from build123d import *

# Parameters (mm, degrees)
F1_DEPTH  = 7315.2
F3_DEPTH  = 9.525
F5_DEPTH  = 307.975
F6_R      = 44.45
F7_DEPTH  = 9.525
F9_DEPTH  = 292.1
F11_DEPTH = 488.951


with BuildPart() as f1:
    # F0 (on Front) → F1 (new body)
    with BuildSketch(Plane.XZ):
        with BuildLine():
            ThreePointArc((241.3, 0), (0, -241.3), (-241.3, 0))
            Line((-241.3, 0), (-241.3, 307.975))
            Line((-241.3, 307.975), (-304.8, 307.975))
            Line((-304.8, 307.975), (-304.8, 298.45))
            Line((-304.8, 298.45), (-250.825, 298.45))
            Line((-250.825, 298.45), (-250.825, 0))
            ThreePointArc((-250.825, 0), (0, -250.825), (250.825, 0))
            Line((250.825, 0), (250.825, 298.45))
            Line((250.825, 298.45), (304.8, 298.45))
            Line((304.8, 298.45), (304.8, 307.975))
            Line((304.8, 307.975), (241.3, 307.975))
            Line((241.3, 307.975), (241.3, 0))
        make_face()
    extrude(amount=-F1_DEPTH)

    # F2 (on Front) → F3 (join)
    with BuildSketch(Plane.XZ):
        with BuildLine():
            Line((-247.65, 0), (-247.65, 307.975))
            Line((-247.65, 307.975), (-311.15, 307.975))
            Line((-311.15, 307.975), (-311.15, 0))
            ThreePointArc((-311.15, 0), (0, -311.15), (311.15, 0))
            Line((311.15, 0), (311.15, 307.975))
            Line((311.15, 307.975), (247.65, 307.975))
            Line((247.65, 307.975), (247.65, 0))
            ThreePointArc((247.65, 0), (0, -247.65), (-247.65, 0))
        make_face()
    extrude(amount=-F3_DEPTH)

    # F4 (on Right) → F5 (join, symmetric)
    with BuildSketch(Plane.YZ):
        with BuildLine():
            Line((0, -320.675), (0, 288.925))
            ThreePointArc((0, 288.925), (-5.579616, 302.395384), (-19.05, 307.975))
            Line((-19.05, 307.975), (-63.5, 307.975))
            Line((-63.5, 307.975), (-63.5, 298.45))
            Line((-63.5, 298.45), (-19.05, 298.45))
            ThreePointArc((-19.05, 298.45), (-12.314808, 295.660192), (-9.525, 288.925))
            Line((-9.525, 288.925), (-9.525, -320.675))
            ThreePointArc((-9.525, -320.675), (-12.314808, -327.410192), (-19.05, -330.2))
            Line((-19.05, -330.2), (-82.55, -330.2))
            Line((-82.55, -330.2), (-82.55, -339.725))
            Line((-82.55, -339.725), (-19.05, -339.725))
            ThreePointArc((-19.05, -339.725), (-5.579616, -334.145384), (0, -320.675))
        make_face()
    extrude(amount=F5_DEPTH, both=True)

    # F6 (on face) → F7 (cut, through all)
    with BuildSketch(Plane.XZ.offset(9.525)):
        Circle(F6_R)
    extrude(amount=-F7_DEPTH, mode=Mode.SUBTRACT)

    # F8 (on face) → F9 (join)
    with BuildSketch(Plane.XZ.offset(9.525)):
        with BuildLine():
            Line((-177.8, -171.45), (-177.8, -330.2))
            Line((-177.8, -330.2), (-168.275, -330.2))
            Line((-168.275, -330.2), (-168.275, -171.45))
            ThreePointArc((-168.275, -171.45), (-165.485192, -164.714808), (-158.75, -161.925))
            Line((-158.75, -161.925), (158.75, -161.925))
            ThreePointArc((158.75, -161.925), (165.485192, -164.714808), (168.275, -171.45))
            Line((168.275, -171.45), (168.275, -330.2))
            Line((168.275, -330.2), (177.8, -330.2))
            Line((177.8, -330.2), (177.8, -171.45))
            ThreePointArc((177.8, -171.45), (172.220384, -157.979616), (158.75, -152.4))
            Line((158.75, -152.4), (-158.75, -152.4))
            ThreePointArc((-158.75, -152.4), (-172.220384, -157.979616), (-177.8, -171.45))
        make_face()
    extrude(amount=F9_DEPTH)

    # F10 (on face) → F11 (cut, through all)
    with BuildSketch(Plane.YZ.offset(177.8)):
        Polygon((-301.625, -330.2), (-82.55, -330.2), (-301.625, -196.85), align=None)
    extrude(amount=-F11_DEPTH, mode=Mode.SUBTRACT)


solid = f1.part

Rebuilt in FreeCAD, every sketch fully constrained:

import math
import FreeCAD as App
import Part
import Sketcher

V = App.Vector
Q = App.Units.Quantity

doc = App.newDocument("Part")
params = doc.addObject("Spreadsheet::Sheet", "Params")
for row, (alias, value) in enumerate([
    ("sketch1_radius", "9.5 in"),
    ("sketch1_width", "2.5 in"),
    ("sketch1_radius2", "9.875 in"),
    ("sketch1_height", "11.75 in"),
    ("sketch1_height2", "12.125 in"),
    ("pad1_length", "288 in"),
    ("sketch2_radius", "12.25 in"),
    ("sketch2_radius2", "9.75 in"),
    ("sketch2_height", "12.125 in"),
    ("pad2_length", "0.375 in"),
    ("sketch3_height", "24 in"),
    ("sketch3_radius", "0.75 in"),
    ("sketch3_width", "2.5 in"),
    ("sketch3_radius2", "0.375 in"),
    ("sketch3_width2", "1.75 in"),
    ("pad3_length", "24.25 in"),
    ("sketch4_diameter", "3.5 in"),
    ("sketch5_radius", "0.75 in"),
    ("sketch5_width", "12.5 in"),
    ("sketch5_radius2", "0.375 in"),
    ("pad4_length", "11.5 in"),
    ("sketch6_height", "5.25 in"),
    ("sketch6_width", "8.625 in"),
], start=1):
    params.set(f"A{row}", alias)
    params.set(f"B{row}", "=" + value)
    params.setAlias(f"B{row}", alias)

body = doc.addObject("PartDesign::Body", "Body")

# Sketch on XZ plane
sketch1 = body.newObject("Sketcher::SketchObject", "Sketch")
sketch1.AttachmentSupport = (doc.getObject("XZ_Plane"), [""])
sketch1.MapMode = "FlatFace"
sketch1.addGeometry(Part.ArcOfCircle(Part.Circle(V(0, 0, 0), V(0, 0, 1), 241.3), math.radians(180), math.radians(360)), False)
sketch1.addGeometry(Part.LineSegment(V(-241.3, 0, 0), V(-241.3, 307.975, 0)), False)
sketch1.addGeometry(Part.LineSegment(V(-241.3, 307.975, 0), V(-304.8, 307.975, 0)), False)
sketch1.addGeometry(Part.LineSegment(V(-304.8, 307.975, 0), V(-304.8, 298.45, 0)), False)
sketch1.addGeometry(Part.LineSegment(V(-304.8, 298.45, 0), V(-250.825, 298.45, 0)), False)
sketch1.addGeometry(Part.LineSegment(V(-250.825, 298.45, 0), V(-250.825, 0, 0)), False)
sketch1.addGeometry(Part.ArcOfCircle(Part.Circle(V(0, 0, 0), V(0, 0, 1), 250.825), math.radians(180), math.radians(360)), False)
sketch1.addGeometry(Part.LineSegment(V(250.825, 0, 0), V(250.825, 298.45, 0)), False)
sketch1.addGeometry(Part.LineSegment(V(250.825, 298.45, 0), V(304.8, 298.45, 0)), False)
sketch1.addGeometry(Part.LineSegment(V(304.8, 298.45, 0), V(304.8, 307.975, 0)), False)
sketch1.addGeometry(Part.LineSegment(V(304.8, 307.975, 0), V(241.3, 307.975, 0)), False)
sketch1.addGeometry(Part.LineSegment(V(241.3, 307.975, 0), V(241.3, 0, 0)), False)
sketch1.addConstraint(Sketcher.Constraint("Tangent", 0, 1, 1, 1))
sketch1.addConstraint(Sketcher.Constraint("Coincident", 1, 2, 2, 1))
sketch1.addConstraint(Sketcher.Constraint("Coincident", 2, 2, 3, 1))
sketch1.addConstraint(Sketcher.Constraint("Coincident", 3, 2, 4, 1))
sketch1.addConstraint(Sketcher.Constraint("Coincident", 4, 2, 5, 1))
sketch1.addConstraint(Sketcher.Constraint("Tangent", 5, 2, 6, 1))
sketch1.addConstraint(Sketcher.Constraint("Tangent", 6, 2, 7, 1))
sketch1.addConstraint(Sketcher.Constraint("Coincident", 7, 2, 8, 1))
sketch1.addConstraint(Sketcher.Constraint("Coincident", 8, 2, 9, 1))
sketch1.addConstraint(Sketcher.Constraint("Coincident", 9, 2, 10, 1))
sketch1.addConstraint(Sketcher.Constraint("Coincident", 10, 2, 11, 1))
sketch1.addConstraint(Sketcher.Constraint("Tangent", 11, 2, 0, 2))
sketch1.addConstraint(Sketcher.Constraint("Vertical", 1))
sketch1.addConstraint(Sketcher.Constraint("Horizontal", 2))
sketch1.addConstraint(Sketcher.Constraint("Vertical", 3))
sketch1.addConstraint(Sketcher.Constraint("Horizontal", 4))
sketch1.addConstraint(Sketcher.Constraint("Vertical", 5))
sketch1.addConstraint(Sketcher.Constraint("Vertical", 7))
sketch1.addConstraint(Sketcher.Constraint("Horizontal", 8))
sketch1.addConstraint(Sketcher.Constraint("Vertical", 9))
sketch1.addConstraint(Sketcher.Constraint("Horizontal", 10))
sketch1.addConstraint(Sketcher.Constraint("Vertical", 11))
sketch1.addConstraint(Sketcher.Constraint("Coincident", 0, 3, -1, 1))
sketch1.addConstraint(Sketcher.Constraint("Coincident", 6, 3, -1, 1))
sketch1.addConstraint(Sketcher.Constraint("Symmetric", 3, 2, 8, 2, -2))
sketch1.addConstraint(Sketcher.Constraint("Horizontal", 2, 2, 9, 2))
sketch1.addConstraint(Sketcher.Constraint("Radius", 0, Q("9.5 in")))
sketch1.addConstraint(Sketcher.Constraint("DistanceX", 2, 2, 2, 1, Q("2.5 in")))
sketch1.addConstraint(Sketcher.Constraint("Radius", 6, Q("9.875 in")))
sketch1.addConstraint(Sketcher.Constraint("DistanceY", 5, 2, 5, 1, Q("11.75 in")))
sketch1.addConstraint(Sketcher.Constraint("DistanceY", 1, 1, 1, 2, Q("12.125 in")))
sketch1.setExpression("Constraints[26]", "Params.sketch1_radius")
sketch1.setExpression("Constraints[27]", "Params.sketch1_width")
sketch1.setExpression("Constraints[28]", "Params.sketch1_radius2")
sketch1.setExpression("Constraints[29]", "Params.sketch1_height")
sketch1.setExpression("Constraints[30]", "Params.sketch1_height2")
pad1 = body.newObject("PartDesign::Pad", "Pad")
pad1.Profile = sketch1
pad1.setExpression("Length", "Params.pad1_length")
pad1.Reversed = True

# Sketch on XZ plane
sketch2 = body.newObject("Sketcher::SketchObject", "Sketch001")
sketch2.AttachmentSupport = (doc.getObject("XZ_Plane"), [""])
sketch2.MapMode = "FlatFace"
sketch2.addGeometry(Part.LineSegment(V(-247.65, 0, 0), V(-247.65, 307.975, 0)), False)
sketch2.addGeometry(Part.LineSegment(V(-247.65, 307.975, 0), V(-311.15, 307.975, 0)), False)
sketch2.addGeometry(Part.LineSegment(V(-311.15, 307.975, 0), V(-311.15, 0, 0)), False)
sketch2.addGeometry(Part.ArcOfCircle(Part.Circle(V(0, 0, 0), V(0, 0, 1), 311.15), math.radians(180), math.radians(360)), False)
sketch2.addGeometry(Part.LineSegment(V(311.15, 0, 0), V(311.15, 307.975, 0)), False)
sketch2.addGeometry(Part.LineSegment(V(311.15, 307.975, 0), V(247.65, 307.975, 0)), False)
sketch2.addGeometry(Part.LineSegment(V(247.65, 307.975, 0), V(247.65, 0, 0)), False)
sketch2.addGeometry(Part.ArcOfCircle(Part.Circle(V(0, 0, 0), V(0, 0, 1), 247.65), math.radians(180), math.radians(360)), False)
sketch2.addConstraint(Sketcher.Constraint("Coincident", 0, 2, 1, 1))
sketch2.addConstraint(Sketcher.Constraint("Coincident", 1, 2, 2, 1))
sketch2.addConstraint(Sketcher.Constraint("Tangent", 2, 2, 3, 1))
sketch2.addConstraint(Sketcher.Constraint("Tangent", 3, 2, 4, 1))
sketch2.addConstraint(Sketcher.Constraint("Coincident", 4, 2, 5, 1))
sketch2.addConstraint(Sketcher.Constraint("Coincident", 5, 2, 6, 1))
sketch2.addConstraint(Sketcher.Constraint("Tangent", 6, 2, 7, 2))
sketch2.addConstraint(Sketcher.Constraint("Tangent", 7, 1, 0, 1))
sketch2.addConstraint(Sketcher.Constraint("Vertical", 0))
sketch2.addConstraint(Sketcher.Constraint("Horizontal", 1))
sketch2.addConstraint(Sketcher.Constraint("Vertical", 2))
sketch2.addConstraint(Sketcher.Constraint("Vertical", 4))
sketch2.addConstraint(Sketcher.Constraint("Horizontal", 5))
sketch2.addConstraint(Sketcher.Constraint("Vertical", 6))
sketch2.addConstraint(Sketcher.Constraint("Coincident", 3, 3, -1, 1))
sketch2.addConstraint(Sketcher.Constraint("Coincident", 7, 3, -1, 1))
sketch2.addConstraint(Sketcher.Constraint("Horizontal", 1, 2, 4, 2))
sketch2.addConstraint(Sketcher.Constraint("Radius", 3, Q("12.25 in")))
sketch2.addConstraint(Sketcher.Constraint("Radius", 7, Q("9.75 in")))
sketch2.addConstraint(Sketcher.Constraint("DistanceY", 0, 1, 0, 2, Q("12.125 in")))
sketch2.setExpression("Constraints[17]", "Params.sketch2_radius")
sketch2.setExpression("Constraints[18]", "Params.sketch2_radius2")
sketch2.setExpression("Constraints[19]", "Params.sketch2_height")
pad2 = body.newObject("PartDesign::Pad", "Pad001")
pad2.Profile = sketch2
pad2.setExpression("Length", "Params.pad2_length")
pad2.Reversed = True

# Sketch on YZ plane
sketch3 = body.newObject("Sketcher::SketchObject", "Sketch002")
sketch3.AttachmentSupport = (doc.getObject("YZ_Plane"), [""])
sketch3.MapMode = "FlatFace"
sketch3.addGeometry(Part.LineSegment(V(0, -320.675, 0), V(0, 288.925, 0)), False)
sketch3.addGeometry(Part.ArcOfCircle(Part.Circle(V(-19.050001, 288.924999, 0), V(0, 0, 1), 19.050001), math.radians(0.000002), math.radians(89.999998)), False)
sketch3.addGeometry(Part.LineSegment(V(-19.05, 307.975, 0), V(-63.5, 307.975, 0)), False)
sketch3.addGeometry(Part.LineSegment(V(-63.5, 307.975, 0), V(-63.5, 298.45, 0)), False)
sketch3.addGeometry(Part.LineSegment(V(-63.5, 298.45, 0), V(-19.05, 298.45, 0)), False)
sketch3.addGeometry(Part.ArcOfCircle(Part.Circle(V(-19.05, 288.925, 0), V(0, 0, 1), 9.525), math.radians(0.000002), math.radians(89.999998)), False)
sketch3.addGeometry(Part.LineSegment(V(-9.525, 288.925, 0), V(-9.525, -320.675, 0)), False)
sketch3.addGeometry(Part.ArcOfCircle(Part.Circle(V(-19.05, -320.675, 0), V(0, 0, 1), 9.525), math.radians(-89.999998), math.radians(-0.000002)), False)
sketch3.addGeometry(Part.LineSegment(V(-19.05, -330.2, 0), V(-82.55, -330.2, 0)), False)
sketch3.addGeometry(Part.LineSegment(V(-82.55, -330.2, 0), V(-82.55, -339.725, 0)), False)
sketch3.addGeometry(Part.LineSegment(V(-82.55, -339.725, 0), V(-19.05, -339.725, 0)), False)
sketch3.addGeometry(Part.ArcOfCircle(Part.Circle(V(-19.050001, -320.674999, 0), V(0, 0, 1), 19.050001), math.radians(-89.999998), math.radians(-0.000002)), False)
sketch3.addConstraint(Sketcher.Constraint("Tangent", 0, 2, 1, 1))
sketch3.addConstraint(Sketcher.Constraint("Tangent", 1, 2, 2, 1))
sketch3.addConstraint(Sketcher.Constraint("Coincident", 2, 2, 3, 1))
sketch3.addConstraint(Sketcher.Constraint("Coincident", 3, 2, 4, 1))
sketch3.addConstraint(Sketcher.Constraint("Tangent", 4, 2, 5, 2))
sketch3.addConstraint(Sketcher.Constraint("Tangent", 5, 1, 6, 1))
sketch3.addConstraint(Sketcher.Constraint("Tangent", 6, 2, 7, 2))
sketch3.addConstraint(Sketcher.Constraint("Tangent", 7, 1, 8, 1))
sketch3.addConstraint(Sketcher.Constraint("Coincident", 8, 2, 9, 1))
sketch3.addConstraint(Sketcher.Constraint("Coincident", 9, 2, 10, 1))
sketch3.addConstraint(Sketcher.Constraint("Tangent", 10, 2, 11, 1))
sketch3.addConstraint(Sketcher.Constraint("Tangent", 11, 2, 0, 1))
sketch3.addConstraint(Sketcher.Constraint("Vertical", 0))
sketch3.addConstraint(Sketcher.Constraint("Horizontal", 2))
sketch3.addConstraint(Sketcher.Constraint("Vertical", 3))
sketch3.addConstraint(Sketcher.Constraint("Horizontal", 4))
sketch3.addConstraint(Sketcher.Constraint("Vertical", 6))
sketch3.addConstraint(Sketcher.Constraint("Horizontal", 8))
sketch3.addConstraint(Sketcher.Constraint("Vertical", 9))
sketch3.addConstraint(Sketcher.Constraint("Horizontal", 10))
sketch3.addConstraint(Sketcher.Constraint("Coincident", 5, 3, 1, 3))
sketch3.addConstraint(Sketcher.Constraint("Coincident", 11, 3, 7, 3))
sketch3.addConstraint(Sketcher.Constraint("Equal", 5, 7))
sketch3.addConstraint(Sketcher.Constraint("PointOnObject", 0, 2, -2))
sketch3.addConstraint(Sketcher.Constraint("DistanceY", 0, 1, 0, 2, Q("24 in")))
sketch3.addConstraint(Sketcher.Constraint("Radius", 1, Q("0.75 in")))
sketch3.addConstraint(Sketcher.Constraint("DistanceX", 8, 2, 8, 1, Q("2.5 in")))
sketch3.addConstraint(Sketcher.Constraint("DistanceY", 7, 1, -1, 1, Q("13 in")))
sketch3.addConstraint(Sketcher.Constraint("Radius", 5, Q("0.375 in")))
sketch3.addConstraint(Sketcher.Constraint("DistanceX", 2, 2, 2, 1, Q("1.75 in")))
sketch3.setExpression("Constraints[24]", "Params.sketch3_height")
sketch3.setExpression("Constraints[25]", "Params.sketch3_radius")
sketch3.setExpression("Constraints[26]", "Params.sketch3_width")
sketch3.setExpression("Constraints[28]", "Params.sketch3_radius2")
sketch3.setExpression("Constraints[29]", "Params.sketch3_width2")
pad3 = body.newObject("PartDesign::Pad", "Pad002")
pad3.Profile = sketch3
pad3.setExpression("Length", "Params.pad3_length")
pad3.Midplane = True

# Sketch on XZ plane
sketch4 = body.newObject("Sketcher::SketchObject", "Sketch003")
sketch4.AttachmentSupport = (doc.getObject("XZ_Plane"), [""])
sketch4.MapMode = "FlatFace"
sketch4.AttachmentOffset = App.Placement(V(0, 0, 0.375 * 25.4), App.Rotation())
sketch4.addGeometry(Part.Circle(V(0, 0, 0), V(0, 0, 1), 44.45), False)
sketch4.addConstraint(Sketcher.Constraint("Coincident", 0, 3, -1, 1))
sketch4.addConstraint(Sketcher.Constraint("Diameter", 0, Q("3.5 in")))
sketch4.setExpression("Constraints[1]", "Params.sketch4_diameter")
pocket1 = body.newObject("PartDesign::Pocket", "Pocket")
pocket1.Profile = sketch4
pocket1.Type = "ThroughAll"

# Sketch on XZ plane
sketch5 = body.newObject("Sketcher::SketchObject", "Sketch004")
sketch5.AttachmentSupport = (doc.getObject("XZ_Plane"), [""])
sketch5.MapMode = "FlatFace"
sketch5.AttachmentOffset = App.Placement(V(0, 0, 0.375 * 25.4), App.Rotation())
sketch5.addGeometry(Part.LineSegment(V(-177.8, -171.45, 0), V(-177.8, -330.2, 0)), False)
sketch5.addGeometry(Part.LineSegment(V(-177.8, -330.2, 0), V(-168.275, -330.2, 0)), False)
sketch5.addGeometry(Part.LineSegment(V(-168.275, -330.2, 0), V(-168.275, -171.45, 0)), False)
sketch5.addGeometry(Part.ArcOfCircle(Part.Circle(V(-158.75, -171.45, 0), V(0, 0, 1), 9.525), math.radians(90.000002), math.radians(179.999998)), False)
sketch5.addGeometry(Part.LineSegment(V(-158.75, -161.925, 0), V(158.75, -161.925, 0)), False)
sketch5.addGeometry(Part.ArcOfCircle(Part.Circle(V(158.75, -171.45, 0), V(0, 0, 1), 9.525), math.radians(0.000002), math.radians(89.999998)), False)
sketch5.addGeometry(Part.LineSegment(V(168.275, -171.45, 0), V(168.275, -330.2, 0)), False)
sketch5.addGeometry(Part.LineSegment(V(168.275, -330.2, 0), V(177.8, -330.2, 0)), False)
sketch5.addGeometry(Part.LineSegment(V(177.8, -330.2, 0), V(177.8, -171.45, 0)), False)
sketch5.addGeometry(Part.ArcOfCircle(Part.Circle(V(158.749999, -171.450001, 0), V(0, 0, 1), 19.050001), math.radians(0.000002), math.radians(89.999998)), False)
sketch5.addGeometry(Part.LineSegment(V(158.75, -152.4, 0), V(-158.75, -152.4, 0)), False)
sketch5.addGeometry(Part.ArcOfCircle(Part.Circle(V(-158.749999, -171.450001, 0), V(0, 0, 1), 19.050001), math.radians(90.000002), math.radians(179.999998)), False)
sketch5.addConstraint(Sketcher.Constraint("Coincident", 0, 2, 1, 1))
sketch5.addConstraint(Sketcher.Constraint("Coincident", 1, 2, 2, 1))
sketch5.addConstraint(Sketcher.Constraint("Tangent", 2, 2, 3, 2))
sketch5.addConstraint(Sketcher.Constraint("Tangent", 3, 1, 4, 1))
sketch5.addConstraint(Sketcher.Constraint("Tangent", 4, 2, 5, 2))
sketch5.addConstraint(Sketcher.Constraint("Tangent", 5, 1, 6, 1))
sketch5.addConstraint(Sketcher.Constraint("Coincident", 6, 2, 7, 1))
sketch5.addConstraint(Sketcher.Constraint("Coincident", 7, 2, 8, 1))
sketch5.addConstraint(Sketcher.Constraint("Tangent", 8, 2, 9, 1))
sketch5.addConstraint(Sketcher.Constraint("Tangent", 9, 2, 10, 1))
sketch5.addConstraint(Sketcher.Constraint("Tangent", 10, 2, 11, 1))
sketch5.addConstraint(Sketcher.Constraint("Tangent", 11, 2, 0, 1))
sketch5.addConstraint(Sketcher.Constraint("Vertical", 0))
sketch5.addConstraint(Sketcher.Constraint("Horizontal", 1))
sketch5.addConstraint(Sketcher.Constraint("Vertical", 2))
sketch5.addConstraint(Sketcher.Constraint("Horizontal", 4))
sketch5.addConstraint(Sketcher.Constraint("Vertical", 6))
sketch5.addConstraint(Sketcher.Constraint("Horizontal", 7))
sketch5.addConstraint(Sketcher.Constraint("Vertical", 8))
sketch5.addConstraint(Sketcher.Constraint("Horizontal", 10))
sketch5.addConstraint(Sketcher.Constraint("Coincident", 9, 3, 5, 3))
sketch5.addConstraint(Sketcher.Constraint("Coincident", 11, 3, 3, 3))
sketch5.addConstraint(Sketcher.Constraint("Equal", 3, 5))
sketch5.addConstraint(Sketcher.Constraint("Symmetric", 1, 2, 6, 2, -2))
sketch5.addConstraint(Sketcher.Constraint("Radius", 9, Q("0.75 in")))
sketch5.addConstraint(Sketcher.Constraint("DistanceX", 4, 1, 4, 2, Q("12.5 in")))
sketch5.addConstraint(Sketcher.Constraint("DistanceY", 0, 2, -1, 1, Q("13 in")))
sketch5.addConstraint(Sketcher.Constraint("DistanceY", 9, 2, -1, 1, Q("6 in")))
sketch5.addConstraint(Sketcher.Constraint("Radius", 3, Q("0.375 in")))
sketch5.setExpression("Constraints[24]", "Params.sketch5_radius")
sketch5.setExpression("Constraints[25]", "Params.sketch5_width")
sketch5.setExpression("Constraints[28]", "Params.sketch5_radius2")
pad4 = body.newObject("PartDesign::Pad", "Pad003")
pad4.Profile = sketch5
pad4.setExpression("Length", "Params.pad4_length")

# Sketch on YZ plane
sketch6 = body.newObject("Sketcher::SketchObject", "Sketch005")
sketch6.AttachmentSupport = (doc.getObject("YZ_Plane"), [""])
sketch6.MapMode = "FlatFace"
sketch6.AttachmentOffset = App.Placement(V(0, 0, 7 * 25.4), App.Rotation())
sketch6.addGeometry(Part.LineSegment(V(-301.625, -330.2, 0), V(-82.55, -330.2, 0)), False)
sketch6.addGeometry(Part.LineSegment(V(-82.55, -330.2, 0), V(-301.625, -196.85, 0)), False)
sketch6.addGeometry(Part.LineSegment(V(-301.625, -196.85, 0), V(-301.625, -330.2, 0)), False)
sketch6.addConstraint(Sketcher.Constraint("Coincident", 0, 2, 1, 1))
sketch6.addConstraint(Sketcher.Constraint("Coincident", 1, 2, 2, 1))
sketch6.addConstraint(Sketcher.Constraint("Coincident", 2, 2, 0, 1))
sketch6.addConstraint(Sketcher.Constraint("Horizontal", 0))
sketch6.addConstraint(Sketcher.Constraint("Vertical", 2))
sketch6.addConstraint(Sketcher.Constraint("DistanceY", 0, 2, -1, 1, Q("13 in")))
sketch6.addConstraint(Sketcher.Constraint("DistanceY", 2, 2, 2, 1, Q("5.25 in")))
sketch6.addConstraint(Sketcher.Constraint("DistanceX", 0, 1, 0, 2, Q("8.625 in")))
sketch6.addConstraint(Sketcher.Constraint("DistanceX", 0, 2, -1, 1, Q("3.25 in")))
sketch6.setExpression("Constraints[6]", "Params.sketch6_height")
sketch6.setExpression("Constraints[7]", "Params.sketch6_width")
pocket2 = body.newObject("PartDesign::Pocket", "Pocket001")
pocket2.Profile = sketch6
pocket2.Type = "ThroughAll"

doc.recompute()
